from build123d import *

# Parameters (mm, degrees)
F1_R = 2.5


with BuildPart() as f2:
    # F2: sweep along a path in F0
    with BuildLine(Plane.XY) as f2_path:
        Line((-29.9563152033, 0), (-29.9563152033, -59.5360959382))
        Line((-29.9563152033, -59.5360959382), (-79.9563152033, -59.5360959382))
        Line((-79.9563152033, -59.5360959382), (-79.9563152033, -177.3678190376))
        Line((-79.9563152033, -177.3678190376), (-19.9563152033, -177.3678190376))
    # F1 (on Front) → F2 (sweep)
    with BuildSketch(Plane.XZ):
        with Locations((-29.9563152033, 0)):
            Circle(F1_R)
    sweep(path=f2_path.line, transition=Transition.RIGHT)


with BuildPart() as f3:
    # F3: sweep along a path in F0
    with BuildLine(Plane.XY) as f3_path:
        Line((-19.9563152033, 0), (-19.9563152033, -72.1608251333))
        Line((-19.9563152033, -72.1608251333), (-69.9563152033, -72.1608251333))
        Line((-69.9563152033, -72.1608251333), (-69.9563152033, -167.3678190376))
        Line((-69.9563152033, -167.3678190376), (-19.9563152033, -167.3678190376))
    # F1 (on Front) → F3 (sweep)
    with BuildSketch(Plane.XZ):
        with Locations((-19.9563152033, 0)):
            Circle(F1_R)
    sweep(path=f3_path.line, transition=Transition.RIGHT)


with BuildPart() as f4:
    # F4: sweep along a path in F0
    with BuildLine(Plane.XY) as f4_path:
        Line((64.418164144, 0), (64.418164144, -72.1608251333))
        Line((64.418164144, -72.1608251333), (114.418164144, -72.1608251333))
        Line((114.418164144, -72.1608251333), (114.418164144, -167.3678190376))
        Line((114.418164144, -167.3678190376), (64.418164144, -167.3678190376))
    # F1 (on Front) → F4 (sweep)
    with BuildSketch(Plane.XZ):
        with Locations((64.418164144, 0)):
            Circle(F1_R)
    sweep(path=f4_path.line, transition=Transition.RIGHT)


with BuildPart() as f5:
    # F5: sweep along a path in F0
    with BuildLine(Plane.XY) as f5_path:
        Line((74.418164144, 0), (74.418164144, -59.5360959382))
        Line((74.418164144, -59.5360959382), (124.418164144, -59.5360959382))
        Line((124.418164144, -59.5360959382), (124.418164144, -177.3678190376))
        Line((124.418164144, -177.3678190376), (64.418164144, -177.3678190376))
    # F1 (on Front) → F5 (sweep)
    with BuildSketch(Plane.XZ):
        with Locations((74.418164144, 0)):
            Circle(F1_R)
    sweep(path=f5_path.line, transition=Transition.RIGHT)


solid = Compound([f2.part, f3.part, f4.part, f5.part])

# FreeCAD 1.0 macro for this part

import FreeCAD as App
import Part
import Sketcher
from FreeCAD import Vector

doc = App.newDocument("Part")
body = doc.addObject("PartDesign::Body", "Body")

# Sketch on XZ plane
sketch1 = body.newObject("Sketcher::SketchObject", "Sketch")
sketch1.AttachmentSupport = (doc.getObject("XZ_Plane"), [""])
sketch1.MapMode = "FlatFace"
sketch1.addGeometry(Part.Circle(Vector(-30, 0, 0), Vector(0, 0, 1), 2.5), False)
sketch1.addConstraint(Sketcher.Constraint("PointOnObject", 0, 3, -1))
sketch1.addConstraint(Sketcher.Constraint("Diameter", 0, 5.0))
sketch1.addConstraint(Sketcher.Constraint("DistanceX", 0, 3, -1, 1, 29.956315))

# Sketch on XY plane
sketch2 = body.newObject("Sketcher::SketchObject", "Sketch001")
sketch2.AttachmentSupport = (doc.getObject("XY_Plane"), [""])
sketch2.MapMode = "FlatFace"
sketch2.addGeometry(Part.LineSegment(Vector(-30, 0, 0), Vector(-30, -60, 0)), False)
sketch2.addGeometry(Part.LineSegment(Vector(-30, -60, 0), Vector(-80, -60, 0)), False)
sketch2.addGeometry(Part.LineSegment(Vector(-80, -60, 0), Vector(-80, -177, 0)), False)
sketch2.addGeometry(Part.LineSegment(Vector(-80, -177, 0), Vector(-20, -177, 0)), False)
sketch2.addConstraint(Sketcher.Constraint("Coincident", 0, 2, 1, 1))
sketch2.addConstraint(Sketcher.Constraint("Coincident", 1, 2, 2, 1))
sketch2.addConstraint(Sketcher.Constraint("Coincident", 2, 2, 3, 1))
sketch2.addConstraint(Sketcher.Constraint("Vertical", 0))
sketch2.addConstraint(Sketcher.Constraint("Horizontal", 1))
sketch2.addConstraint(Sketcher.Constraint("Vertical", 2))
sketch2.addConstraint(Sketcher.Constraint("Horizontal", 3))
sketch2.addConstraint(Sketcher.Constraint("PointOnObject", 0, 1, -1))
sketch2.addConstraint(Sketcher.Constraint("DistanceX", 1, 2, 1, 1, 50.0))
sketch2.addConstraint(Sketcher.Constraint("DistanceX", 3, 1, 3, 2, 60.0))
sketch2.addConstraint(Sketcher.Constraint("DistanceY", 0, 2, 0, 1, 59.536096))
sketch2.addConstraint(Sketcher.Constraint("DistanceY", 2, 2, 2, 1, 117.831723))
sketch2.addConstraint(Sketcher.Constraint("DistanceX", 0, 1, -1, 1, 29.956315))
doc.recompute()

additivepipe = body.newObject("PartDesign::AdditivePipe", "AdditivePipe")
additivepipe.Profile = sketch1
additivepipe.Spine = (sketch2, ["Edge1", "Edge2", "Edge3", "Edge4"])
additivepipe.Transition = "Right corner"
body2 = doc.addObject("PartDesign::Body", "Body001")

# Sketch on XZ plane
sketch3 = body2.newObject("Sketcher::SketchObject", "Sketch002")
sketch3.AttachmentSupport = (doc.getObject("XZ_Plane001"), [""])
sketch3.MapMode = "FlatFace"
sketch3.addGeometry(Part.Circle(Vector(-20, 0, 0), Vector(0, 0, 1), 2.5), False)
sketch3.addConstraint(Sketcher.Constraint("PointOnObject", 0, 3, -1))
sketch3.addConstraint(Sketcher.Constraint("Diameter", 0, 5.0))
sketch3.addConstraint(Sketcher.Constraint("DistanceX", 0, 3, -1, 1, 19.956315))

# Sketch on XY plane
sketch4 = body2.newObject("Sketcher::SketchObject", "Sketch003")
sketch4.AttachmentSupport = (doc.getObject("XY_Plane001"), [""])
sketch4.MapMode = "FlatFace"
sketch4.addGeometry(Part.LineSegment(Vector(-20, 0, 0), Vector(-20, -72, 0)), False)
sketch4.addGeometry(Part.LineSegment(Vector(-20, -72, 0), Vector(-70, -72, 0)), False)
sketch4.addGeometry(Part.LineSegment(Vector(-70, -72, 0), Vector(-70, -167, 0)), False)
sketch4.addGeometry(Part.LineSegment(Vector(-70, -167, 0), Vector(-20, -167, 0)), False)
sketch4.addConstraint(Sketcher.Constraint("Coincident", 0, 2, 1, 1))
sketch4.addConstraint(Sketcher.Constraint("Coincident", 1, 2, 2, 1))
sketch4.addConstraint(Sketcher.Constraint("Coincident", 2, 2, 3, 1))
sketch4.addConstraint(Sketcher.Constraint("Vertical", 0))
sketch4.addConstraint(Sketcher.Constraint("Horizontal", 1))
sketch4.addConstraint(Sketcher.Constraint("Vertical", 2))
sketch4.addConstraint(Sketcher.Constraint("Horizontal", 3))
sketch4.addConstraint(Sketcher.Constraint("PointOnObject", 0, 1, -1))
sketch4.addConstraint(Sketcher.Constraint("Vertical", 0, 2, 3, 2))
sketch4.addConstraint(Sketcher.Constraint("DistanceX", 1, 2, 1, 1, 50.0))
sketch4.addConstraint(Sketcher.Constraint("DistanceY", 0, 2, 0, 1, 72.160825))
sketch4.addConstraint(Sketcher.Constraint("DistanceY", 2, 2, 2, 1, 95.206994))
sketch4.addConstraint(Sketcher.Constraint("DistanceX", 0, 1, -1, 1, 19.956315))
doc.recompute()

additivepipe2 = body2.newObject("PartDesign::AdditivePipe", "AdditivePipe001")
additivepipe2.Profile = sketch3
additivepipe2.Spine = (sketch4, ["Edge1", "Edge2", "Edge3", "Edge4"])
additivepipe2.Transition = "Right corner"
body3 = doc.addObject("PartDesign::Body", "Body002")

# Sketch on XZ plane
sketch5 = body3.newObject("Sketcher::SketchObject", "Sketch004")
sketch5.AttachmentSupport = (doc.getObject("XZ_Plane002"), [""])
sketch5.MapMode = "FlatFace"
sketch5.addGeometry(Part.Circle(Vector(64.4, 0, 0), Vector(0, 0, 1), 2.5), False)
sketch5.addConstraint(Sketcher.Constraint("PointOnObject", 0, 3, -1))
sketch5.addConstraint(Sketcher.Constraint("Diameter", 0, 5.0))
sketch5.addConstraint(Sketcher.Constraint("DistanceX", -1, 1, 0, 3, 64.418164))

# Sketch on XY plane
sketch6 = body3.newObject("Sketcher::SketchObject", "Sketch005")
sketch6.AttachmentSupport = (doc.getObject("XY_Plane002"), [""])
sketch6.MapMode = "FlatFace"
sketch6.addGeometry(Part.LineSegment(Vector(64, 0, 0), Vector(64, -72, 0)), False)
sketch6.addGeometry(Part.LineSegment(Vector(64, -72, 0), Vector(114, -72, 0)), False)
sketch6.addGeometry(Part.LineSegment(Vector(114, -72, 0), Vector(114, -167, 0)), False)
sketch6.addGeometry(Part.LineSegment(Vector(114, -167, 0), Vector(64, -167, 0)), False)
sketch6.addConstraint(Sketcher.Constraint("Coincident", 0, 2, 1, 1))
sketch6.addConstraint(Sketcher.Constraint("Coincident", 1, 2, 2, 1))
sketch6.addConstraint(Sketcher.Constraint("Coincident", 2, 2, 3, 1))
sketch6.addConstraint(Sketcher.Constraint("Vertical", 0))
sketch6.addConstraint(Sketcher.Constraint("Horizontal", 1))
sketch6.addConstraint(Sketcher.Constraint("Vertical", 2))
sketch6.addConstraint(Sketcher.Constraint("Horizontal", 3))
sketch6.addConstraint(Sketcher.Constraint("PointOnObject", 0, 1, -1))
sketch6.addConstraint(Sketcher.Constraint("Vertical", 0, 2, 3, 2))
sketch6.addConstraint(Sketcher.Constraint("DistanceX", 1, 1, 1, 2, 50.0))
sketch6.addConstraint(Sketcher.Constraint("DistanceY", 0, 2, 0, 1, 72.160825))
sketch6.addConstraint(Sketcher.Constraint("DistanceY", 2, 2, 2, 1, 95.206994))
sketch6.addConstraint(Sketcher.Constraint("DistanceX", -1, 1, 0, 1, 64.418164))
doc.recompute()

additivepipe3 = body3.newObject("PartDesign::AdditivePipe", "AdditivePipe002")
additivepipe3.Profile = sketch5
additivepipe3.Spine = (sketch6, ["Edge1", "Edge2", "Edge3", "Edge4"])
additivepipe3.Transition = "Right corner"
body4 = doc.addObject("PartDesign::Body", "Body003")

# Sketch on XZ plane
sketch7 = body4.newObject("Sketcher::SketchObject", "Sketch006")
sketch7.AttachmentSupport = (doc.getObject("XZ_Plane003"), [""])
sketch7.MapMode = "FlatFace"
sketch7.addGeometry(Part.Circle(Vector(74.4, 0, 0), Vector(0, 0, 1), 2.5), False)
sketch7.addConstraint(Sketcher.Constraint("PointOnObject", 0, 3, -1))
sketch7.addConstraint(Sketcher.Constraint("Diameter", 0, 5.0))
sketch7.addConstraint(Sketcher.Constraint("DistanceX", -1, 1, 0, 3, 74.418164))

# Sketch on XY plane
sketch8 = body4.newObject("Sketcher::SketchObject", "Sketch007")
sketch8.AttachmentSupport = (doc.getObject("XY_Plane003"), [""])
sketch8.MapMode = "FlatFace"
sketch8.addGeometry(Part.LineSegment(Vector(74, 0, 0), Vector(74, -60, 0)), False)
sketch8.addGeometry(Part.LineSegment(Vector(74, -60, 0), Vector(124, -60, 0)), False)
sketch8.addGeometry(Part.LineSegment(Vector(124, -60, 0), Vector(124, -177, 0)), False)
sketch8.addGeometry(Part.LineSegment(Vector(124, -177, 0), Vector(64, -177, 0)), False)
sketch8.addConstraint(Sketcher.Constraint("Coincident", 0, 2, 1, 1))
sketch8.addConstraint(Sketcher.Constraint("Coincident", 1, 2, 2, 1))
sketch8.addConstraint(Sketcher.Constraint("Coincident", 2, 2, 3, 1))
sketch8.addConstraint(Sketcher.Constraint("Vertical", 0))
sketch8.addConstraint(Sketcher.Constraint("Horizontal", 1))
sketch8.addConstraint(Sketcher.Constraint("Vertical", 2))
sketch8.addConstraint(Sketcher.Constraint("Horizontal", 3))
sketch8.addConstraint(Sketcher.Constraint("PointOnObject", 0, 1, -1))
sketch8.addConstraint(Sketcher.Constraint("DistanceX", 1, 1, 1, 2, 50.0))
sketch8.addConstraint(Sketcher.Constraint("DistanceX", 3, 2, 3, 1, 60.0))
sketch8.addConstraint(Sketcher.Constraint("DistanceY", 0, 2, 0, 1, 59.536096))
sketch8.addConstraint(Sketcher.Constraint("DistanceY", 2, 2, 2, 1, 117.831723))
sketch8.addConstraint(Sketcher.Constraint("DistanceX", -1, 1, 0, 1, 74.418164))
doc.recompute()

additivepipe4 = body4.newObject("PartDesign::AdditivePipe", "AdditivePipe003")
additivepipe4.Profile = sketch7
additivepipe4.Spine = (sketch8, ["Edge1", "Edge2", "Edge3", "Edge4"])
additivepipe4.Transition = "Right corner"

doc.recompute()
